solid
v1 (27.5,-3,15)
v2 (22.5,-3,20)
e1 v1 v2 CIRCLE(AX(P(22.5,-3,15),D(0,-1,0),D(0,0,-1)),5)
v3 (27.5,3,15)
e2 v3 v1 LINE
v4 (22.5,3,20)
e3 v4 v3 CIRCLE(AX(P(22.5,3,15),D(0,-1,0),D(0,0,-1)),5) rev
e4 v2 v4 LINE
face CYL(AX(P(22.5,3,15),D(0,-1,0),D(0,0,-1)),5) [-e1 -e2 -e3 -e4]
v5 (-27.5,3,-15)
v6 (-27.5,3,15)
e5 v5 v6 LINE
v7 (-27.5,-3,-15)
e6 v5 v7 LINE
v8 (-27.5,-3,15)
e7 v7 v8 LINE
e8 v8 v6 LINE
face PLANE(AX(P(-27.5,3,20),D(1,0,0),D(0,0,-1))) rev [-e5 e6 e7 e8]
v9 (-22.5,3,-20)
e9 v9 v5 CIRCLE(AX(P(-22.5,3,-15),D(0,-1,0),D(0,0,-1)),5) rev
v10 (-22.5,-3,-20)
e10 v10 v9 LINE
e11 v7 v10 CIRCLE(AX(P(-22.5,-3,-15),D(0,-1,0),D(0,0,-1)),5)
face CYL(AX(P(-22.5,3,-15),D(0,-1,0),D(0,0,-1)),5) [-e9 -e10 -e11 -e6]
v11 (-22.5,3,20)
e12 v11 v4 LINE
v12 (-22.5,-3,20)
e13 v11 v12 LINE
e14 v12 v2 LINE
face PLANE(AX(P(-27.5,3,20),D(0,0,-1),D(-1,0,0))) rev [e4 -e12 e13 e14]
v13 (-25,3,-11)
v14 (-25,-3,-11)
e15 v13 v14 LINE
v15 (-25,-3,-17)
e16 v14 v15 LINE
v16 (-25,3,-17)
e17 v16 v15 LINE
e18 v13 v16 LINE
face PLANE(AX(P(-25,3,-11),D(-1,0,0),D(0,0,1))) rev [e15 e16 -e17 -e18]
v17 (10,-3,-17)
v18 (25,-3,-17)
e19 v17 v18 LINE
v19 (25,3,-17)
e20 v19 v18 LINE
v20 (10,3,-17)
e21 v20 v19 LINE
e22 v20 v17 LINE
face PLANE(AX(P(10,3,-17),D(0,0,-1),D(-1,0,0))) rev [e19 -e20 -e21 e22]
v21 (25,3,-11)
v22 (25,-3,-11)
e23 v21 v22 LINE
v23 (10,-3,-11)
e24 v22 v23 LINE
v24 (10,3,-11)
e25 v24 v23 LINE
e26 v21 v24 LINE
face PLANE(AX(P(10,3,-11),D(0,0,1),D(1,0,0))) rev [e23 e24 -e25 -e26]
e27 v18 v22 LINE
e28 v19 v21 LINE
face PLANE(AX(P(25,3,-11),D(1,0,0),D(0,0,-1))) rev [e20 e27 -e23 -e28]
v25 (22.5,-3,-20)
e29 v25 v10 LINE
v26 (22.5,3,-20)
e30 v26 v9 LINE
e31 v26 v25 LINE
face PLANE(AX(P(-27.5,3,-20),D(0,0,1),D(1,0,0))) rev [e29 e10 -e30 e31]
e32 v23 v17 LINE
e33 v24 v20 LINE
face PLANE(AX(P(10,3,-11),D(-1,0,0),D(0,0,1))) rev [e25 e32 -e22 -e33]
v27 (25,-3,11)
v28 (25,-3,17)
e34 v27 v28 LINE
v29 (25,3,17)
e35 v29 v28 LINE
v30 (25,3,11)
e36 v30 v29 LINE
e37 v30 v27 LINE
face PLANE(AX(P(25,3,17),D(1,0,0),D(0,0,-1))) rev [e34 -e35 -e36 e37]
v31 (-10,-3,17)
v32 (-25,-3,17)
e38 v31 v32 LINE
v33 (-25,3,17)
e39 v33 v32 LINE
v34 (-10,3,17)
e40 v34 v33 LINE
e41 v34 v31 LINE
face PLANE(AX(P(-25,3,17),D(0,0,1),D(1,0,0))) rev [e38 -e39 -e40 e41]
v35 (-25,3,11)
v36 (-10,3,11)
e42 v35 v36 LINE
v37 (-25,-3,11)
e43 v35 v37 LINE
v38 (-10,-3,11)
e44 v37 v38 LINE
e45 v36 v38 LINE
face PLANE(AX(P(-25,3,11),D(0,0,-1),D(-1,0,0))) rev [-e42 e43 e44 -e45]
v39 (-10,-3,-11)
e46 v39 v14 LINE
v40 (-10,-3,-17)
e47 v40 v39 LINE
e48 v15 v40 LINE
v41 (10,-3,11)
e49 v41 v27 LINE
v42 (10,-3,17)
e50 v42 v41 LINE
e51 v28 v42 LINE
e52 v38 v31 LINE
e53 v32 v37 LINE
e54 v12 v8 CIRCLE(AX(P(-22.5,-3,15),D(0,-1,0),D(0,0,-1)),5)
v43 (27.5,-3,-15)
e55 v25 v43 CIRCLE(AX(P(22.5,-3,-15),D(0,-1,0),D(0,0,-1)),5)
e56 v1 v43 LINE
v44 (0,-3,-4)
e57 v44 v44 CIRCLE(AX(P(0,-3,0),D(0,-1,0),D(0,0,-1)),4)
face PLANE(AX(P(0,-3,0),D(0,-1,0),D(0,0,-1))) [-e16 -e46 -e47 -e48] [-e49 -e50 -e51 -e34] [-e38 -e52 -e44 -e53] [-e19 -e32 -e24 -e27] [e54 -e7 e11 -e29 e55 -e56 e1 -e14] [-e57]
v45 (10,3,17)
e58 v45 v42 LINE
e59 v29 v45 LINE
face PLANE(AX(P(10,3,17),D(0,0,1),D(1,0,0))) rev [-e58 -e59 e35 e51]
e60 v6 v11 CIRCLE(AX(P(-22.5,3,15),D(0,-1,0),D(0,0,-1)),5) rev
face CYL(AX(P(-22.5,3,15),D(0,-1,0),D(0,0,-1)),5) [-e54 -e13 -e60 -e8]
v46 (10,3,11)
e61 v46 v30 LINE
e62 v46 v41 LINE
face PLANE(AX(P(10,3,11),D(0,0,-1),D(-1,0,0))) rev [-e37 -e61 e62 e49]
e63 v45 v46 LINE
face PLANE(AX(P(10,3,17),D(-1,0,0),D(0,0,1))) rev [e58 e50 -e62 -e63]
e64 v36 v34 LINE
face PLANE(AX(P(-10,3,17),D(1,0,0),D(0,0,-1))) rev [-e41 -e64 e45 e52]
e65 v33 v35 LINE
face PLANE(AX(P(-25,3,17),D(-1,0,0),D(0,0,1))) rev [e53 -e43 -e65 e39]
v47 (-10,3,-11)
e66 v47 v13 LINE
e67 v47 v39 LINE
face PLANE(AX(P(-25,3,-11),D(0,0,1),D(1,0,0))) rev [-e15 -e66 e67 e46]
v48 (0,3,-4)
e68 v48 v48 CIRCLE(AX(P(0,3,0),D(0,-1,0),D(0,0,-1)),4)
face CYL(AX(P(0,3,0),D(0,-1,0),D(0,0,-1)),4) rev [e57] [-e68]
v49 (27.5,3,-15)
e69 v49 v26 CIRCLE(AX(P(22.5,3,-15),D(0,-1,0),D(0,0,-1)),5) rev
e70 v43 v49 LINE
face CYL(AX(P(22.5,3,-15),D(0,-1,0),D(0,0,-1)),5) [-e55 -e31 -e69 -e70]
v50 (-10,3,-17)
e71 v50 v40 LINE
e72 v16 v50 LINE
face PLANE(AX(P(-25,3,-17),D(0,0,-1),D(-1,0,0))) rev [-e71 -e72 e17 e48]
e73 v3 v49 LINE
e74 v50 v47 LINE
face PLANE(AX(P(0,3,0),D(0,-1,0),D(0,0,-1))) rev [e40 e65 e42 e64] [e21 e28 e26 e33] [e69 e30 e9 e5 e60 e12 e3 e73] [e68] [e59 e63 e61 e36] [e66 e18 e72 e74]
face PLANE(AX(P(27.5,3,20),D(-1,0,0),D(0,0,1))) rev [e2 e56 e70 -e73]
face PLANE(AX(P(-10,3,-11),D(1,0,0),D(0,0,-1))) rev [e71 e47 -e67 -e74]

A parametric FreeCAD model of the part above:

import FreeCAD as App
import Part
import Sketcher
Q = App.Units.Quantity


def edges_at(feature, points):
    """Names of the edges that pass closest to the given points."""
    edges = feature.Shape.Edges
    near = lambda p: min(range(len(edges)), key=lambda i: edges[i].distToShape(Part.Vertex(*p))[0])
    return sorted({f"Edge{near(p) + 1}" for p in points})

doc = App.newDocument("Part")
params = doc.addObject("Spreadsheet::Sheet", "Params")
for row, (alias, value) in enumerate([
    ("sketch1_width", "55 mm"),
    ("sketch1_height", "40 mm"),
    ("pad1_length", "6 mm"),
    ("sketch2_width", "15 mm"),
    ("sketch2_height", "6 mm"),
    ("sketch3_diameter", "8 mm"),
    ("fillet_radius", "5 mm"),
], start=1):
    params.set(f"A{row}", alias)
    params.set(f"B{row}", "=" + value)
    params.setAlias(f"B{row}", alias)

body = doc.addObject("PartDesign::Body", "Body")

# Sketch on XZ plane
sketch1 = body.newObject("Sketcher::SketchObject", "Sketch")
sketch1.AttachmentSupport = (doc.getObject("XZ_Plane"), [""])
sketch1.MapMode = "FlatFace"
sketch1.addGeometry(Part.LineSegment(App.Vector(-28, -20, 0), App.Vector(-28, 20, 0)), False)
sketch1.addGeometry(Part.LineSegment(App.Vector(-28, 20, 0), App.Vector(28, 20, 0)), False)
sketch1.addGeometry(Part.LineSegment(App.Vector(28, 20, 0), App.Vector(28, -20, 0)), False)
sketch1.addGeometry(Part.LineSegment(App.Vector(28, -20, 0), App.Vector(-28, -20, 0)), False)
sketch1.addConstraint(Sketcher.Constraint("Coincident", 0, 2, 1, 1))
sketch1.addConstraint(Sketcher.Constraint("Coincident", 1, 2, 2, 1))
sketch1.addConstraint(Sketcher.Constraint("Coincident", 2, 2, 3, 1))
sketch1.addConstraint(Sketcher.Constraint("Coincident", 3, 2, 0, 1))
sketch1.addConstraint(Sketcher.Constraint("Vertical", 0))
sketch1.addConstraint(Sketcher.Constraint("Horizontal", 1))
sketch1.addConstraint(Sketcher.Constraint("Vertical", 2))
sketch1.addConstraint(Sketcher.Constraint("Horizontal", 3))
sketch1.addConstraint(Sketcher.Constraint("Symmetric", 0, 2, 2, 2, -1, 1))
sketch1.addConstraint(Sketcher.Constraint("DistanceX", 1, 1, 1, 2, Q("55 mm")))
sketch1.addConstraint(Sketcher.Constraint("DistanceY", 0, 1, 0, 2, Q("40 mm")))
sketch1.setExpression("Constraints[9]", "Params.sketch1_width")
sketch1.setExpression("Constraints[10]", "Params.sketch1_height")
pad1 = body.newObject("PartDesign::Pad", "Pad")
pad1.Profile = sketch1
pad1.setExpression("Length", "Params.pad1_length")
pad1.Midplane = True

# Sketch on XZ plane
sketch2 = body.newObject("Sketcher::SketchObject", "Sketch001")
sketch2.AttachmentSupport = (doc.getObject("XZ_Plane"), [""])
sketch2.MapMode = "FlatFace"
sketch2.AttachmentOffset = App.Placement(App.Vector(0, 0, 3), App.Rotation())
sketch2.addGeometry(Part.LineSegment(App.Vector(-10, 11, 0), App.Vector(-10, 17, 0)), False)
sketch2.addGeometry(Part.LineSegment(App.Vector(-10, 17, 0), App.Vector(-25, 17, 0)), False)
sketch2.addGeometry(Part.LineSegment(App.Vector(-25, 17, 0), App.Vector(-25, 11, 0)), False)
sketch2.addGeometry(Part.LineSegment(App.Vector(-25, 11, 0), App.Vector(-10, 11, 0)), False)
sketch2.addGeometry(Part.LineSegment(App.Vector(25, 11, 0), App.Vector(25, 17, 0)), False)
sketch2.addGeometry(Part.LineSegment(App.Vector(25, 17, 0), App.Vector(10, 17, 0)), False)
sketch2.addGeometry(Part.LineSegment(App.Vector(10, 17, 0), App.Vector(10, 11, 0)), False)
sketch2.addGeometry(Part.LineSegment(App.Vector(10, 11, 0), App.Vector(25, 11, 0)), False)
sketch2.addGeometry(Part.LineSegment(App.Vector(-10, -17, 0), App.Vector(-10, -11, 0)), False)
sketch2.addGeometry(Part.LineSegment(App.Vector(-10, -11, 0), App.Vector(-25, -11, 0)), False)
sketch2.addGeometry(Part.LineSegment(App.Vector(-25, -11, 0), App.Vector(-25, -17, 0)), False)
sketch2.addGeometry(Part.LineSegment(App.Vector(-25, -17, 0), App.Vector(-10, -17, 0)), False)
sketch2.addGeometry(Part.LineSegment(App.Vector(25, -17, 0), App.Vector(25, -11, 0)), False)
sketch2.addGeometry(Part.LineSegment(App.Vector(25, -11, 0), App.Vector(10, -11, 0)), False)
sketch2.addGeometry(Part.LineSegment(App.Vector(10, -11, 0), App.Vector(10, -17, 0)), False)
sketch2.addGeometry(Part.LineSegment(App.Vector(10, -17, 0), App.Vector(25, -17, 0)), False)
sketch2.addConstraint(Sketcher.Constraint("Coincident", 0, 2, 1, 1))
sketch2.addConstraint(Sketcher.Constraint("Coincident", 1, 2, 2, 1))
sketch2.addConstraint(Sketcher.Constraint("Coincident", 2, 2, 3, 1))
sketch2.addConstraint(Sketcher.Constraint("Coincident", 3, 2, 0, 1))
sketch2.addConstraint(Sketcher.Constraint("Coincident", 4, 2, 5, 1))
sketch2.addConstraint(Sketcher.Constraint("Coincident", 5, 2, 6, 1))
sketch2.addConstraint(Sketcher.Constraint("Coincident", 6, 2, 7, 1))
sketch2.addConstraint(Sketcher.Constraint("Coincident", 7, 2, 4, 1))
sketch2.addConstraint(Sketcher.Constraint("Coincident", 8, 2, 9, 1))
sketch2.addConstraint(Sketcher.Constraint("Coincident", 9, 2, 10, 1))
sketch2.addConstraint(Sketcher.Constraint("Coincident", 10, 2, 11, 1))
sketch2.addConstraint(Sketcher.Constraint("Coincident", 11, 2, 8, 1))
sketch2.addConstraint(Sketcher.Constraint("Coincident", 12, 2, 13, 1))
sketch2.addConstraint(Sketcher.Constraint("Coincident", 13, 2, 14, 1))
sketch2.addConstraint(Sketcher.Constraint("Coincident", 14, 2, 15, 1))
sketch2.addConstraint(Sketcher.Constraint("Coincident", 15, 2, 12, 1))
sketch2.addConstraint(Sketcher.Constraint("Vertical", 0))
sketch2.addConstraint(Sketcher.Constraint("Horizontal", 1))
sketch2.addConstraint(Sketcher.Constraint("Vertical", 2))
sketch2.addConstraint(Sketcher.Constraint("Horizontal", 3))
sketch2.addConstraint(Sketcher.Constraint("Vertical", 4))
sketch2.addConstraint(Sketcher.Constraint("Horizontal", 5))
sketch2.addConstraint(Sketcher.Constraint("Vertical", 6))
sketch2.addConstraint(Sketcher.Constraint("Horizontal", 7))
sketch2.addConstraint(Sketcher.Constraint("Vertical", 8))
sketch2.addConstraint(Sketcher.Constraint("Horizontal", 9))
sketch2.addConstraint(Sketcher.Constraint("Vertical", 10))
sketch2.addConstraint(Sketcher.Constraint("Horizontal", 11))
sketch2.addConstraint(Sketcher.Constraint("Vertical", 12))
sketch2.addConstraint(Sketcher.Constraint("Horizontal", 13))
sketch2.addConstraint(Sketcher.Constraint("Vertical", 14))
sketch2.addConstraint(Sketcher.Constraint("Horizontal", 15))
sketch2.addConstraint(Sketcher.Constraint("Symmetric", 6, 2, 8, 2, -1, 1))
sketch2.addConstraint(Sketcher.Constraint("Symmetric", 4, 2, 10, 2, -1, 1))
sketch2.addConstraint(Sketcher.Constraint("Symmetric", 2, 2, 12, 2, -1, 1))
sketch2.addConstraint(Sketcher.Constraint("Symmetric", 0, 2, 14, 2, -1, 1))
sketch2.addConstraint(Sketcher.Constraint("Symmetric", 1, 2, 4, 2, -2))
sketch2.addConstraint(Sketcher.Constraint("Symmetric", 3, 2, 6, 2, -2))
sketch2.addConstraint(Sketcher.Constraint("DistanceX", 1, 2, 1, 1, Q("15 mm")))
sketch2.addConstraint(Sketcher.Constraint("DistanceY", 0, 1, 0, 2, Q("6 mm")))
sketch2.addConstraint(Sketcher.Constraint("DistanceX", 0, 2, -1, 1, Q("10 mm")))
sketch2.addConstraint(Sketcher.Constraint("DistanceY", -1, 1, 0, 2, Q("17 mm")))
sketch2.setExpression("Constraints[38]", "Params.sketch2_width")
sketch2.setExpression("Constraints[39]", "Params.sketch2_height")
pocket1 = body.newObject("PartDesign::Pocket", "Pocket")
pocket1.Profile = sketch2
pocket1.Type = "ThroughAll"

# Sketch on XZ plane
sketch3 = body.newObject("Sketcher::SketchObject", "Sketch002")
sketch3.AttachmentSupport = (doc.getObject("XZ_Plane"), [""])
sketch3.MapMode = "FlatFace"
sketch3.AttachmentOffset = App.Placement(App.Vector(0, 0, 3), App.Rotation())
sketch3.addGeometry(Part.Circle(App.Vector(0, 0, 0), App.Vector(0, 0, 1), 4), False)
sketch3.addConstraint(Sketcher.Constraint("Coincident", 0, 3, -1, 1))
sketch3.addConstraint(Sketcher.Constraint("Diameter", 0, Q("8 mm")))
sketch3.setExpression("Constraints[1]", "Params.sketch3_diameter")
pocket2 = body.newObject("PartDesign::Pocket", "Pocket001")
pocket2.Profile = sketch3
pocket2.Type = "ThroughAll"
doc.recompute()

fillet = body.newObject("PartDesign::Fillet", "Fillet")
fillet.Base = (pocket2, edges_at(pocket2, [
    (27.5, 0, 20),
    (-27.5, 0, 20),
    (-27.5, 0, -20),
    (27.5, 0, -20),
]))
fillet.setExpression("Radius", "Params.fillet_radius")

doc.recompute()
